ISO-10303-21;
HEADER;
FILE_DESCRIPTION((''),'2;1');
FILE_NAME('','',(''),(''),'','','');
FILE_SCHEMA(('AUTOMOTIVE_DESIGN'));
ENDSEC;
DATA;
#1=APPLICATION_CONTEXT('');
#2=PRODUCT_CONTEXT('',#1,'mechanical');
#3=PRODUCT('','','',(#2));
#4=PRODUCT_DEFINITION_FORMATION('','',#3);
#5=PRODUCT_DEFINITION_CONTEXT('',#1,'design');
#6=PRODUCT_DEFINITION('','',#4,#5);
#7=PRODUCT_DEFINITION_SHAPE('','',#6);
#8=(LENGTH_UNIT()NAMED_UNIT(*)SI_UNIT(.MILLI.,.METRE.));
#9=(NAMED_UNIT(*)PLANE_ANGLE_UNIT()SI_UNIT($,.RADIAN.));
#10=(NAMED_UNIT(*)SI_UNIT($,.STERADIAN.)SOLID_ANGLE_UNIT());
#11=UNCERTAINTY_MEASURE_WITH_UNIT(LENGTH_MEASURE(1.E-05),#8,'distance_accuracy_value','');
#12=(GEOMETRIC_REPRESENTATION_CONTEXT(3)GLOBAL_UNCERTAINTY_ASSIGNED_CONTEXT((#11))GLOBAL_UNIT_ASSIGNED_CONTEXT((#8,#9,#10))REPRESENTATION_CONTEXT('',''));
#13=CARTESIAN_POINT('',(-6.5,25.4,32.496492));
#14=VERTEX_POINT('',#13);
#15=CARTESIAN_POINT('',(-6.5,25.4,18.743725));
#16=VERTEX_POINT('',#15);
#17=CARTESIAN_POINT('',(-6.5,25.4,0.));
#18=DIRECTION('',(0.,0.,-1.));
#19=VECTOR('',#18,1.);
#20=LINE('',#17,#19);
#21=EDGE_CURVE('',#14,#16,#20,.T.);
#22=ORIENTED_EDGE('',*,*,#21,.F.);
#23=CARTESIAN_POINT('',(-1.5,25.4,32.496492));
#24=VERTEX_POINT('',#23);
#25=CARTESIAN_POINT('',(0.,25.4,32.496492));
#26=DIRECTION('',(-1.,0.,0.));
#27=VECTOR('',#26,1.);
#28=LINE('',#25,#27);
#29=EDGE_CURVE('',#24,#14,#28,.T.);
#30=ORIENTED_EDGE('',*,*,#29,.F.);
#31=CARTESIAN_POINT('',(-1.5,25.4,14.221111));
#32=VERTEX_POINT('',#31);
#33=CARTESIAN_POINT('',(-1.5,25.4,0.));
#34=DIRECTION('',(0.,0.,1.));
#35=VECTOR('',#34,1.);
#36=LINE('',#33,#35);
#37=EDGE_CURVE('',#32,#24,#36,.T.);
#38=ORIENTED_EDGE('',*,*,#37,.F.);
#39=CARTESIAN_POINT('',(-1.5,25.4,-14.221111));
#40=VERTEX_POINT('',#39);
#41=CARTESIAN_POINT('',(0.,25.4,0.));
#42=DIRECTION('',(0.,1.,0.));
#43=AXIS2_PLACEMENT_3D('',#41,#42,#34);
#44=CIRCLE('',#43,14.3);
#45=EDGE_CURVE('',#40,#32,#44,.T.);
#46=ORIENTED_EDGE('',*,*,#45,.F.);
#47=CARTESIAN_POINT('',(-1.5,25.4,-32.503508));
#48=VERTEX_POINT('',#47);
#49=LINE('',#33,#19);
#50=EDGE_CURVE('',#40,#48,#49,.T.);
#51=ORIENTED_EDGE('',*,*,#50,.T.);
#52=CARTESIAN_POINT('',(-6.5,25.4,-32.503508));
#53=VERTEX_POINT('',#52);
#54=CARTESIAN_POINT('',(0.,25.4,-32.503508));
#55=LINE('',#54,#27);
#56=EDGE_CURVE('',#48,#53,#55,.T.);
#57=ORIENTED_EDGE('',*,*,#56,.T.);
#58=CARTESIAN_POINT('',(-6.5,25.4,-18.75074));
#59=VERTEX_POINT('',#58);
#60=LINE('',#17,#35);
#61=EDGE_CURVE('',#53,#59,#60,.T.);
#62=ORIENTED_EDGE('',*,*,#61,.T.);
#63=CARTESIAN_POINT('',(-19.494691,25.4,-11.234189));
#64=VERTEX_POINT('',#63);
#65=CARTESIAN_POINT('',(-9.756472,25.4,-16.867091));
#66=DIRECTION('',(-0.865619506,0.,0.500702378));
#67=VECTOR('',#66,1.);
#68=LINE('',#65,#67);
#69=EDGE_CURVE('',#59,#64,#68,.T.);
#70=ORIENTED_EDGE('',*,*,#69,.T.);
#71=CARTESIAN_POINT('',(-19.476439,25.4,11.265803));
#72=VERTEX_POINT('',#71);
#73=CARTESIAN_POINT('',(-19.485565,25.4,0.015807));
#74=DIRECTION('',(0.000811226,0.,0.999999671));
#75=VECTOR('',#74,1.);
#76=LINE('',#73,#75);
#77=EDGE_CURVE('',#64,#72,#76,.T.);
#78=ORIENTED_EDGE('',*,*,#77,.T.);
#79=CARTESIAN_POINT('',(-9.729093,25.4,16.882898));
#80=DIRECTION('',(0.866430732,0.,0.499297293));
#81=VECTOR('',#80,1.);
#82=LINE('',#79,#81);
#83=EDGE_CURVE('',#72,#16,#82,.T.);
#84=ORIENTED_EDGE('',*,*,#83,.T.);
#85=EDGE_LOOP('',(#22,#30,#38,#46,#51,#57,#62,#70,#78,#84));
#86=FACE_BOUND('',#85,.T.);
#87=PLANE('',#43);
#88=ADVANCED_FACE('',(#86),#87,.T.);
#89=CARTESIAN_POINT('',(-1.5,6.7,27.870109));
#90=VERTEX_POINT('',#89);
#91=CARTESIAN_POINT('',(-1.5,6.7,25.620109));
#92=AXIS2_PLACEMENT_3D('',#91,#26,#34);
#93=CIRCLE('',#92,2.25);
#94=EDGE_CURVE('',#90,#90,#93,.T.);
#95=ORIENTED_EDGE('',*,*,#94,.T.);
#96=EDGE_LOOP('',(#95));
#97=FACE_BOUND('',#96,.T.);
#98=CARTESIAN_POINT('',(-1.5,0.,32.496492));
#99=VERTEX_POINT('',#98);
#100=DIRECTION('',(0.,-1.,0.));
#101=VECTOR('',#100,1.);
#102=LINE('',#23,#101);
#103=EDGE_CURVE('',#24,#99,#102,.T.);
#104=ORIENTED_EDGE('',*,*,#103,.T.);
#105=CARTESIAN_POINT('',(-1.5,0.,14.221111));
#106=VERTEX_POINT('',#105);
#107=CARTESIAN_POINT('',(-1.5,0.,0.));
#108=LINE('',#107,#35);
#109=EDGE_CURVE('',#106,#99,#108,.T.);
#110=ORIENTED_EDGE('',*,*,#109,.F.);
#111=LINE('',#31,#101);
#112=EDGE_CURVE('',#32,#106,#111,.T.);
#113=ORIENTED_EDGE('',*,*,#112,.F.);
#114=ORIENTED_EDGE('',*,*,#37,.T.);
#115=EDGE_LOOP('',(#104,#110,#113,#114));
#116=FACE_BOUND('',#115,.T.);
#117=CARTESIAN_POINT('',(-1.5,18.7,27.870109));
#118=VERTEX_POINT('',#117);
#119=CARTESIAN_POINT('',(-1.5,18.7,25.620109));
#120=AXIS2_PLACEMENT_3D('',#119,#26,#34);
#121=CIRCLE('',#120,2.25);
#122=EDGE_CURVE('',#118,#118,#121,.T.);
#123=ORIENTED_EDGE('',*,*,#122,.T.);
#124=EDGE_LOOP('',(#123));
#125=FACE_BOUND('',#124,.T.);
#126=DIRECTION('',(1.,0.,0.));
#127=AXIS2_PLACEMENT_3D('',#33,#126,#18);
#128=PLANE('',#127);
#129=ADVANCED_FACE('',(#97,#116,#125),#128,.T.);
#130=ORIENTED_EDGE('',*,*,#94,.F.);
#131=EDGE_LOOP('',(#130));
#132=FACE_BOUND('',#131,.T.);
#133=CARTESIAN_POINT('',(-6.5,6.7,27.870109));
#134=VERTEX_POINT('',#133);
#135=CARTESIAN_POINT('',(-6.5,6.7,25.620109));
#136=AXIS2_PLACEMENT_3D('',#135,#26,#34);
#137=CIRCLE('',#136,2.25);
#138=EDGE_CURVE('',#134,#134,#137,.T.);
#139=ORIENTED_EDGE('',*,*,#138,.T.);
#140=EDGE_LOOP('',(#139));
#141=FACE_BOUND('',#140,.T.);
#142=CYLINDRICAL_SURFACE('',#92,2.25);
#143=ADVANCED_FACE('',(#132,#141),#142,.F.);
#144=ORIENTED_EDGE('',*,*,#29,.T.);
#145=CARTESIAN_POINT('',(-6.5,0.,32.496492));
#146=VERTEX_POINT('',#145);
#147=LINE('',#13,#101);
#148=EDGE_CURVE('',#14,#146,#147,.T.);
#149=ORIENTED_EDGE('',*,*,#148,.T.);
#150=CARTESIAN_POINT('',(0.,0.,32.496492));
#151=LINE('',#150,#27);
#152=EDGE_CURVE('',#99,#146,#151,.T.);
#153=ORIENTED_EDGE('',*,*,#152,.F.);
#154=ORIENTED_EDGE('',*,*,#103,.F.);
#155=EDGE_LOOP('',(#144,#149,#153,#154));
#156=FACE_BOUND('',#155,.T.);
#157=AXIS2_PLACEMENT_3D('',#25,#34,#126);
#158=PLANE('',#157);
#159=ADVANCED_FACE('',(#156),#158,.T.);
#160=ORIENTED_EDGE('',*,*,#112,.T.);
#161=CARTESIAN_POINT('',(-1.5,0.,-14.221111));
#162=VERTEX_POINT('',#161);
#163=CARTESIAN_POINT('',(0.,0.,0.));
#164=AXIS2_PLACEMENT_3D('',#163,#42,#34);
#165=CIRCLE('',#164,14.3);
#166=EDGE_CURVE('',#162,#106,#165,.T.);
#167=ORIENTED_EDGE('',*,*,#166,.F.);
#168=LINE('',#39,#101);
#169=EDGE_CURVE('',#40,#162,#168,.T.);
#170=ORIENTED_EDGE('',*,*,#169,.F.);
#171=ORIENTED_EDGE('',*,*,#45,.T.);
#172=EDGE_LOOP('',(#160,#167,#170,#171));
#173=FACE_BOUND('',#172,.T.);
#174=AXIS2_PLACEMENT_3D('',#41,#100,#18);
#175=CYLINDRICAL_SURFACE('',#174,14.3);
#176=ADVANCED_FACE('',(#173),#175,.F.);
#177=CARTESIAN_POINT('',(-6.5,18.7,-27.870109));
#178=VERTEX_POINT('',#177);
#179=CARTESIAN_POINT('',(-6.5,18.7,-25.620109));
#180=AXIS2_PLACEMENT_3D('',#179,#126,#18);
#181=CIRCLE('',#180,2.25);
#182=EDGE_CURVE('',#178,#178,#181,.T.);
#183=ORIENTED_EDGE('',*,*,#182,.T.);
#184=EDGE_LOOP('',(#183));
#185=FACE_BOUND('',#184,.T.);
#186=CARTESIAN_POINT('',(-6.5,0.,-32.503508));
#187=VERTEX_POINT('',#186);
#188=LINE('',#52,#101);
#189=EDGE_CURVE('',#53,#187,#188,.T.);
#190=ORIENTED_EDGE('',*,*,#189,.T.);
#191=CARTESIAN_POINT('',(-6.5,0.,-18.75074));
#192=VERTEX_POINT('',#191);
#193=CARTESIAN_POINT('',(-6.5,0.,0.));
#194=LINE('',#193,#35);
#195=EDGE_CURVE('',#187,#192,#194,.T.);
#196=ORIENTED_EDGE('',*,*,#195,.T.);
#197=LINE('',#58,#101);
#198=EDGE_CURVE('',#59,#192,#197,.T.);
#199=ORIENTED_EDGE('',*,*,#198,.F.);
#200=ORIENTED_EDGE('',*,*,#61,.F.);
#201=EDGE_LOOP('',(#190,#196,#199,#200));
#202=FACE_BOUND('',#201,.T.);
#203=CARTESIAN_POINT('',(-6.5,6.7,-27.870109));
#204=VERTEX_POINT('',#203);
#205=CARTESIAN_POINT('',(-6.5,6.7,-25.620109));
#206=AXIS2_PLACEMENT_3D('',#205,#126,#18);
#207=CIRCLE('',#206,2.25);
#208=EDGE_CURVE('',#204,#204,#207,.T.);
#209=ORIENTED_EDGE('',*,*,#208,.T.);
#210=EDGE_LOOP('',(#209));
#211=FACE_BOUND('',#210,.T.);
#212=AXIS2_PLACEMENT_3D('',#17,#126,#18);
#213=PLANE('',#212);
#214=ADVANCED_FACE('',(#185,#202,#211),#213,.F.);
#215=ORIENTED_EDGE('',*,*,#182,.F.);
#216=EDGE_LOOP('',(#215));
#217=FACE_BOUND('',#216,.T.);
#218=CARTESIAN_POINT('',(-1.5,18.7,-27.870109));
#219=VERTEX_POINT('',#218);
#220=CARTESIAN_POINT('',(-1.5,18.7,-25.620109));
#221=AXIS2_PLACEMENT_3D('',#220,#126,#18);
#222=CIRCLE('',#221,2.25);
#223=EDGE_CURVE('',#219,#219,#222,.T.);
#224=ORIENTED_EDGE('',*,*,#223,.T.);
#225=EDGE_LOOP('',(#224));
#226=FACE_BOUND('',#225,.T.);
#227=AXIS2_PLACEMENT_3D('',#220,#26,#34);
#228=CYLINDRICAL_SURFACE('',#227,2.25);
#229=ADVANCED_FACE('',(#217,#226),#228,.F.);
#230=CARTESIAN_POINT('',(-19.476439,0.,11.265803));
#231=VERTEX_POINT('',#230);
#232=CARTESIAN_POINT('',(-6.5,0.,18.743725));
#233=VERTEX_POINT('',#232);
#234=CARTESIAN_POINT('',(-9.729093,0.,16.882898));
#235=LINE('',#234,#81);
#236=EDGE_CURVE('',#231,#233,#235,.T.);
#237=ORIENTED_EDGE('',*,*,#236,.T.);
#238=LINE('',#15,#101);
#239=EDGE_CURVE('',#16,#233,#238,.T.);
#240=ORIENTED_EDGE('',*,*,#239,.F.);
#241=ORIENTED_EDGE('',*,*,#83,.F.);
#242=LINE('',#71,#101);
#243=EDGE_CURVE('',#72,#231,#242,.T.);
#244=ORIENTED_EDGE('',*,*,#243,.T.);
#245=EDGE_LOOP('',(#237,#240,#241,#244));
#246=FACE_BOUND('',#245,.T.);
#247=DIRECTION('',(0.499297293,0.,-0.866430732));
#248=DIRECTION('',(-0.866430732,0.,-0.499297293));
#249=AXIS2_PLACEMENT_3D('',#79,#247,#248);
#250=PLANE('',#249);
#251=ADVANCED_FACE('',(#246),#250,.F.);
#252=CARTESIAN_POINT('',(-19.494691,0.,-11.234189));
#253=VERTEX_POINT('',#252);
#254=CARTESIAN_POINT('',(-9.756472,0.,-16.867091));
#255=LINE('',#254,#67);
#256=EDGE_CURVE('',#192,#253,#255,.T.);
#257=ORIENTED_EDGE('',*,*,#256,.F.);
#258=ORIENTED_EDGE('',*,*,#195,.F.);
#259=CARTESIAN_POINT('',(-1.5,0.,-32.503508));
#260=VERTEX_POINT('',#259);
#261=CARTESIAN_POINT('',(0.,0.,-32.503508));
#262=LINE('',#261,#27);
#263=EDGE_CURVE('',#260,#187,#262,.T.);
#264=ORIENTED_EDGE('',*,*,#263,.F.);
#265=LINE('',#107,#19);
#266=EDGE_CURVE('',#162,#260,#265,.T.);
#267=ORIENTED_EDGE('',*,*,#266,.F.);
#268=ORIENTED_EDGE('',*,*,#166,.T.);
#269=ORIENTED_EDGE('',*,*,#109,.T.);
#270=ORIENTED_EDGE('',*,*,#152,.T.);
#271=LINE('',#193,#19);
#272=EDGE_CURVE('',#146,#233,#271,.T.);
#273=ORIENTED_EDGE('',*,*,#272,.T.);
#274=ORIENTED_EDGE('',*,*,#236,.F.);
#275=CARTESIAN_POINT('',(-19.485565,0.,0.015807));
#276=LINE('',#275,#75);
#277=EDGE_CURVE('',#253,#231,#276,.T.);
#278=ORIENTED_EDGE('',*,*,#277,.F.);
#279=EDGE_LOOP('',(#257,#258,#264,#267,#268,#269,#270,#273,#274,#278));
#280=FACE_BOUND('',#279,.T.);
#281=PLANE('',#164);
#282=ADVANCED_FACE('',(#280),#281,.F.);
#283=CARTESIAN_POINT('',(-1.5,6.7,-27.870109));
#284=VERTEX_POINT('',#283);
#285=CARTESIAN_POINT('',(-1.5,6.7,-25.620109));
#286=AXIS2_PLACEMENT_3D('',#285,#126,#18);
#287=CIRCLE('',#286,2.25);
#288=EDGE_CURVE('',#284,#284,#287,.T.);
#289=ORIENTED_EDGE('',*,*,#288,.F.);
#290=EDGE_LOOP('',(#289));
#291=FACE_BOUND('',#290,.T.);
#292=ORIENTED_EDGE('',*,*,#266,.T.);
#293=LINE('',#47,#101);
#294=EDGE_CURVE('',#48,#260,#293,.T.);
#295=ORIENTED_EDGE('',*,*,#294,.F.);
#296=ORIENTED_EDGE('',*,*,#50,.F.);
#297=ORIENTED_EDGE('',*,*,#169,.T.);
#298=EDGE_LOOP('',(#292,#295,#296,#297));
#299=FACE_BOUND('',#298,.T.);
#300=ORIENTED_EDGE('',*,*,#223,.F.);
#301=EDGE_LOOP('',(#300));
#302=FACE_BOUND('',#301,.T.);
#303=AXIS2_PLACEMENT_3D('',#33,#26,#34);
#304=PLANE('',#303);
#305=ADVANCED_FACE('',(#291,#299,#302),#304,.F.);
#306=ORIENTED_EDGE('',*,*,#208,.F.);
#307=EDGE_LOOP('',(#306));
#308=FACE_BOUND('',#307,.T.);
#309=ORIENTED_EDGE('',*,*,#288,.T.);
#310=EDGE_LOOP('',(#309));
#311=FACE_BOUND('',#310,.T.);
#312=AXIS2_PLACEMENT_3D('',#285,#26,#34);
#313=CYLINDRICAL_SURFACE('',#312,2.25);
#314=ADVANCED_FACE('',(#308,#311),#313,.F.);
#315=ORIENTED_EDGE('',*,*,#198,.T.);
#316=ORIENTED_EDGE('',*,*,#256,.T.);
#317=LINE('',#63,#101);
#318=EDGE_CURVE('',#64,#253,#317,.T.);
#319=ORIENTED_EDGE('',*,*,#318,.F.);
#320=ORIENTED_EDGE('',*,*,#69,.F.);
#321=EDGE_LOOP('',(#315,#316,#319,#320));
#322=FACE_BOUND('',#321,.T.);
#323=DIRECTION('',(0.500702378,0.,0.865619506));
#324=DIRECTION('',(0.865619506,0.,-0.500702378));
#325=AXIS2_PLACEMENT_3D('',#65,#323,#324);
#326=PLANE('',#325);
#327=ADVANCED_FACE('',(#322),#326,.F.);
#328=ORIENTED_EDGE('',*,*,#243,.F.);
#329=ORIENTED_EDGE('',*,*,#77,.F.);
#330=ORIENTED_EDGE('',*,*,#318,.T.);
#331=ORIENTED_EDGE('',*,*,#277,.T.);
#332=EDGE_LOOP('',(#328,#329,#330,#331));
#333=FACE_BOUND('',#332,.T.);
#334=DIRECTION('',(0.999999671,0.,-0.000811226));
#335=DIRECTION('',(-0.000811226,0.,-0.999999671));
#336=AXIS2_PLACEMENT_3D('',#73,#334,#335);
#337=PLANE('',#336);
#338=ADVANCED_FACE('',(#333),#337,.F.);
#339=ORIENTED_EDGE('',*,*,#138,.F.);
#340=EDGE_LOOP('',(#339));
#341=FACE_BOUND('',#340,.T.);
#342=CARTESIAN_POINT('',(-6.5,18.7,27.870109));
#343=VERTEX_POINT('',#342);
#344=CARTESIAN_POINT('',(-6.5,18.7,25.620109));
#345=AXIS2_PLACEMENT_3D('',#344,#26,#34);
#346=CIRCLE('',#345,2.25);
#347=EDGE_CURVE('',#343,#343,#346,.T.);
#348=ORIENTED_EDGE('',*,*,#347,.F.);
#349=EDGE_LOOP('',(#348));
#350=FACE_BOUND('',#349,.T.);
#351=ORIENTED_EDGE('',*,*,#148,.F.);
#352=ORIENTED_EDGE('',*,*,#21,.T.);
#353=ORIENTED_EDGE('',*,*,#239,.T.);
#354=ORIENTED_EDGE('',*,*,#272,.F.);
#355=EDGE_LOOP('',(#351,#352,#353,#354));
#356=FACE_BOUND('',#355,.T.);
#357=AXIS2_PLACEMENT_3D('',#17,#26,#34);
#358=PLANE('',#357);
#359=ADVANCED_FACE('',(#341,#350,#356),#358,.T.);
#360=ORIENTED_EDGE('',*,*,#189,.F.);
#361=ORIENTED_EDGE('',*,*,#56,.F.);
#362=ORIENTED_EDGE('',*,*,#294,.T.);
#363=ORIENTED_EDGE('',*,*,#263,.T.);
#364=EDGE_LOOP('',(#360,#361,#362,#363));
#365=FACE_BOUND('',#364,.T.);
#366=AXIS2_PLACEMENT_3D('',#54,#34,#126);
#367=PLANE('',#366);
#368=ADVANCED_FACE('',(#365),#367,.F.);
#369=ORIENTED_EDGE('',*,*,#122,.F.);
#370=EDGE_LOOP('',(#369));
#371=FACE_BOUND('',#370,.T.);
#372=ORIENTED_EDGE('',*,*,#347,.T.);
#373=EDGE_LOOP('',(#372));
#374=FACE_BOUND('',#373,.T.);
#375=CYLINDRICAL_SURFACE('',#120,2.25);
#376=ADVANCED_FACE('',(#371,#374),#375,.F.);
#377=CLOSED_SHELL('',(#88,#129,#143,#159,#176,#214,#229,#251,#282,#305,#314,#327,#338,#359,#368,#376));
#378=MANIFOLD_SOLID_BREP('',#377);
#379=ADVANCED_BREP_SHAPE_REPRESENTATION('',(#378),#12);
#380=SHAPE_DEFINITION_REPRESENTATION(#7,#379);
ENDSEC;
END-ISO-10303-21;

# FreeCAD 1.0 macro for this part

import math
import FreeCAD as App
import Part
import Sketcher
from FreeCAD import Vector
Q = App.Units.Quantity

doc = App.newDocument("Part")
params = doc.addObject("Spreadsheet::Sheet", "Params")
for row, (alias, value) in enumerate([
    ("sketch1_radius", "14.3 mm"),
    ("sketch1_width", "5 mm"),
    ("sketch1_length", "22.5 mm"),
    ("pad1_length", "25.4 mm"),
    ("sketch2_diameter", "4.5 mm"),
], start=1):
    params.set(f"A{row}", alias)
    params.set(f"B{row}", "=" + value)
    params.setAlias(f"B{row}", alias)

body = doc.addObject("PartDesign::Body", "Body")

# Sketch on XZ plane
sketch1 = body.newObject("Sketcher::SketchObject", "Sketch")
sketch1.AttachmentSupport = (doc.getObject("XZ_Plane"), [""])
sketch1.MapMode = "FlatFace"
sketch1.addGeometry([
    Part.LineSegment(Vector(-2, -33, 0), Vector(-6, -33, 0)),  # 0
    Part.LineSegment(Vector(-6, -33, 0), Vector(-6, -19, 0)),  # 1
    Part.LineSegment(Vector(-6, -19, 0), Vector(-19, -11, 0)),  # 2
    Part.LineSegment(Vector(-19, -11, 0), Vector(-19, 11, 0)),  # 3
    Part.LineSegment(Vector(-19, 11, 0), Vector(-6, 19, 0)),  # 4
    Part.LineSegment(Vector(-6, 19, 0), Vector(-6, 32, 0)),  # 5
    Part.LineSegment(Vector(-6, 32, 0), Vector(-2, 32, 0)),  # 6
    Part.LineSegment(Vector(-2, 32, 0), Vector(-2, 14, 0)),  # 7
    Part.ArcOfCircle(Part.Circle(Vector(0, 0, 0), Vector(0, 0, 1), 14), math.radians(96), math.radians(264)),  # 8
    Part.LineSegment(Vector(-2, -14, 0), Vector(-2, -33, 0)),  # 9
], False)
sketch1.addConstraint([
    Sketcher.Constraint("Coincident", 0, 2, 1, 1),
    Sketcher.Constraint("Coincident", 1, 2, 2, 1),
    Sketcher.Constraint("Coincident", 2, 2, 3, 1),
    Sketcher.Constraint("Coincident", 3, 2, 4, 1),
    Sketcher.Constraint("Coincident", 4, 2, 5, 1),
    Sketcher.Constraint("Coincident", 5, 2, 6, 1),
    Sketcher.Constraint("Coincident", 6, 2, 7, 1),
    Sketcher.Constraint("Coincident", 7, 2, 8, 1),
    Sketcher.Constraint("Coincident", 8, 2, 9, 1),
    Sketcher.Constraint("Coincident", 9, 2, 0, 1),
    Sketcher.Constraint("Horizontal", 0),
    Sketcher.Constraint("Vertical", 1),
    Sketcher.Constraint("Vertical", 5),
    Sketcher.Constraint("Horizontal", 6),
    Sketcher.Constraint("Vertical", 7),
    Sketcher.Constraint("Vertical", 9),
    Sketcher.Constraint("Coincident", 8, 3, -1, 1),
    Sketcher.Constraint("Vertical", 1, 2, 4, 2),
    Sketcher.Constraint("Vertical", 7, 2, 8, 2),
    Sketcher.Constraint("Equal", 1, 5),
    Sketcher.Constraint("Radius", 8, Q("14.3 mm")),
    Sketcher.Constraint("DistanceX", 0, 2, 0, 1, Q("5 mm")),
    Sketcher.Constraint("Distance", 3, Q("22.5 mm")),
    Sketcher.Constraint("DistanceX", 0, 2, -1, 1, Q("6.5 mm")),
    Sketcher.Constraint("DistanceY", 7, 2, 7, 1, Q("18.275381 mm")),
    Sketcher.Constraint("Distance", 4, Q("14.976891 mm")),
    Sketcher.Constraint("DistanceY", 1, 1, 1, 2, Q("13.752768 mm")),
    Sketcher.Constraint("DistanceY", 9, 2, 9, 1, Q("18.282396 mm")),
    Sketcher.Constraint("DistanceX", 2, 2, -1, 1, Q("19.494691 mm")),
    Sketcher.Constraint("DistanceY", 2, 2, -1, 1, Q("11.234189 mm")),
])
sketch1.setExpression("Constraints[20]", "Params.sketch1_radius")
sketch1.setExpression("Constraints[21]", "Params.sketch1_width")
sketch1.setExpression("Constraints[22]", "Params.sketch1_length")
pad1 = body.newObject("PartDesign::Pad", "Pad")
pad1.Profile = sketch1
pad1.setExpression("Length", "Params.pad1_length")
pad1.Reversed = True

# Sketch on YZ plane
sketch2 = body.newObject("Sketcher::SketchObject", "Sketch001")
sketch2.AttachmentSupport = (doc.getObject("YZ_Plane"), [""])
sketch2.MapMode = "FlatFace"
sketch2.AttachmentOffset = App.Placement(Vector(0, 0, -6.5), App.Rotation())
sketch2.addGeometry([
    Part.Circle(Vector(18.7, 25.6, 0), Vector(0, 0, 1), 2.2),
    Part.Circle(Vector(6.7, 25.6, 0), Vector(0, 0, 1), 2.2),
], False)
sketch2.addConstraint([
    Sketcher.Constraint("Equal", 0, 1),
    Sketcher.Constraint("Horizontal", 0, 3, 1, 3),
    Sketcher.Constraint("Diameter", 0, Q("4.5 mm")),
    Sketcher.Constraint("DistanceX", 1, 3, 0, 3, Q("12 mm")),
    Sketcher.Constraint("DistanceX", -1, 1, 0, 3, Q("18.7 mm")),
    Sketcher.Constraint("DistanceY", -1, 1, 0, 3, Q("25.620109 mm")),
])
sketch2.setExpression("Constraints[2]", "Params.sketch2_diameter")
pocket1 = body.newObject("PartDesign::Pocket", "Pocket")
pocket1.Profile = sketch2
pocket1.Type = "ThroughAll"
pocket1.Reversed = True
doc.recompute()

mirrored = body.newObject("PartDesign::Mirrored", "Mirrored")
mirrored.Originals = [pocket1]
mirrored.MirrorPlane = (doc.getObject("XY_Plane"), [""])
body.Tip = mirrored

doc.recompute()
